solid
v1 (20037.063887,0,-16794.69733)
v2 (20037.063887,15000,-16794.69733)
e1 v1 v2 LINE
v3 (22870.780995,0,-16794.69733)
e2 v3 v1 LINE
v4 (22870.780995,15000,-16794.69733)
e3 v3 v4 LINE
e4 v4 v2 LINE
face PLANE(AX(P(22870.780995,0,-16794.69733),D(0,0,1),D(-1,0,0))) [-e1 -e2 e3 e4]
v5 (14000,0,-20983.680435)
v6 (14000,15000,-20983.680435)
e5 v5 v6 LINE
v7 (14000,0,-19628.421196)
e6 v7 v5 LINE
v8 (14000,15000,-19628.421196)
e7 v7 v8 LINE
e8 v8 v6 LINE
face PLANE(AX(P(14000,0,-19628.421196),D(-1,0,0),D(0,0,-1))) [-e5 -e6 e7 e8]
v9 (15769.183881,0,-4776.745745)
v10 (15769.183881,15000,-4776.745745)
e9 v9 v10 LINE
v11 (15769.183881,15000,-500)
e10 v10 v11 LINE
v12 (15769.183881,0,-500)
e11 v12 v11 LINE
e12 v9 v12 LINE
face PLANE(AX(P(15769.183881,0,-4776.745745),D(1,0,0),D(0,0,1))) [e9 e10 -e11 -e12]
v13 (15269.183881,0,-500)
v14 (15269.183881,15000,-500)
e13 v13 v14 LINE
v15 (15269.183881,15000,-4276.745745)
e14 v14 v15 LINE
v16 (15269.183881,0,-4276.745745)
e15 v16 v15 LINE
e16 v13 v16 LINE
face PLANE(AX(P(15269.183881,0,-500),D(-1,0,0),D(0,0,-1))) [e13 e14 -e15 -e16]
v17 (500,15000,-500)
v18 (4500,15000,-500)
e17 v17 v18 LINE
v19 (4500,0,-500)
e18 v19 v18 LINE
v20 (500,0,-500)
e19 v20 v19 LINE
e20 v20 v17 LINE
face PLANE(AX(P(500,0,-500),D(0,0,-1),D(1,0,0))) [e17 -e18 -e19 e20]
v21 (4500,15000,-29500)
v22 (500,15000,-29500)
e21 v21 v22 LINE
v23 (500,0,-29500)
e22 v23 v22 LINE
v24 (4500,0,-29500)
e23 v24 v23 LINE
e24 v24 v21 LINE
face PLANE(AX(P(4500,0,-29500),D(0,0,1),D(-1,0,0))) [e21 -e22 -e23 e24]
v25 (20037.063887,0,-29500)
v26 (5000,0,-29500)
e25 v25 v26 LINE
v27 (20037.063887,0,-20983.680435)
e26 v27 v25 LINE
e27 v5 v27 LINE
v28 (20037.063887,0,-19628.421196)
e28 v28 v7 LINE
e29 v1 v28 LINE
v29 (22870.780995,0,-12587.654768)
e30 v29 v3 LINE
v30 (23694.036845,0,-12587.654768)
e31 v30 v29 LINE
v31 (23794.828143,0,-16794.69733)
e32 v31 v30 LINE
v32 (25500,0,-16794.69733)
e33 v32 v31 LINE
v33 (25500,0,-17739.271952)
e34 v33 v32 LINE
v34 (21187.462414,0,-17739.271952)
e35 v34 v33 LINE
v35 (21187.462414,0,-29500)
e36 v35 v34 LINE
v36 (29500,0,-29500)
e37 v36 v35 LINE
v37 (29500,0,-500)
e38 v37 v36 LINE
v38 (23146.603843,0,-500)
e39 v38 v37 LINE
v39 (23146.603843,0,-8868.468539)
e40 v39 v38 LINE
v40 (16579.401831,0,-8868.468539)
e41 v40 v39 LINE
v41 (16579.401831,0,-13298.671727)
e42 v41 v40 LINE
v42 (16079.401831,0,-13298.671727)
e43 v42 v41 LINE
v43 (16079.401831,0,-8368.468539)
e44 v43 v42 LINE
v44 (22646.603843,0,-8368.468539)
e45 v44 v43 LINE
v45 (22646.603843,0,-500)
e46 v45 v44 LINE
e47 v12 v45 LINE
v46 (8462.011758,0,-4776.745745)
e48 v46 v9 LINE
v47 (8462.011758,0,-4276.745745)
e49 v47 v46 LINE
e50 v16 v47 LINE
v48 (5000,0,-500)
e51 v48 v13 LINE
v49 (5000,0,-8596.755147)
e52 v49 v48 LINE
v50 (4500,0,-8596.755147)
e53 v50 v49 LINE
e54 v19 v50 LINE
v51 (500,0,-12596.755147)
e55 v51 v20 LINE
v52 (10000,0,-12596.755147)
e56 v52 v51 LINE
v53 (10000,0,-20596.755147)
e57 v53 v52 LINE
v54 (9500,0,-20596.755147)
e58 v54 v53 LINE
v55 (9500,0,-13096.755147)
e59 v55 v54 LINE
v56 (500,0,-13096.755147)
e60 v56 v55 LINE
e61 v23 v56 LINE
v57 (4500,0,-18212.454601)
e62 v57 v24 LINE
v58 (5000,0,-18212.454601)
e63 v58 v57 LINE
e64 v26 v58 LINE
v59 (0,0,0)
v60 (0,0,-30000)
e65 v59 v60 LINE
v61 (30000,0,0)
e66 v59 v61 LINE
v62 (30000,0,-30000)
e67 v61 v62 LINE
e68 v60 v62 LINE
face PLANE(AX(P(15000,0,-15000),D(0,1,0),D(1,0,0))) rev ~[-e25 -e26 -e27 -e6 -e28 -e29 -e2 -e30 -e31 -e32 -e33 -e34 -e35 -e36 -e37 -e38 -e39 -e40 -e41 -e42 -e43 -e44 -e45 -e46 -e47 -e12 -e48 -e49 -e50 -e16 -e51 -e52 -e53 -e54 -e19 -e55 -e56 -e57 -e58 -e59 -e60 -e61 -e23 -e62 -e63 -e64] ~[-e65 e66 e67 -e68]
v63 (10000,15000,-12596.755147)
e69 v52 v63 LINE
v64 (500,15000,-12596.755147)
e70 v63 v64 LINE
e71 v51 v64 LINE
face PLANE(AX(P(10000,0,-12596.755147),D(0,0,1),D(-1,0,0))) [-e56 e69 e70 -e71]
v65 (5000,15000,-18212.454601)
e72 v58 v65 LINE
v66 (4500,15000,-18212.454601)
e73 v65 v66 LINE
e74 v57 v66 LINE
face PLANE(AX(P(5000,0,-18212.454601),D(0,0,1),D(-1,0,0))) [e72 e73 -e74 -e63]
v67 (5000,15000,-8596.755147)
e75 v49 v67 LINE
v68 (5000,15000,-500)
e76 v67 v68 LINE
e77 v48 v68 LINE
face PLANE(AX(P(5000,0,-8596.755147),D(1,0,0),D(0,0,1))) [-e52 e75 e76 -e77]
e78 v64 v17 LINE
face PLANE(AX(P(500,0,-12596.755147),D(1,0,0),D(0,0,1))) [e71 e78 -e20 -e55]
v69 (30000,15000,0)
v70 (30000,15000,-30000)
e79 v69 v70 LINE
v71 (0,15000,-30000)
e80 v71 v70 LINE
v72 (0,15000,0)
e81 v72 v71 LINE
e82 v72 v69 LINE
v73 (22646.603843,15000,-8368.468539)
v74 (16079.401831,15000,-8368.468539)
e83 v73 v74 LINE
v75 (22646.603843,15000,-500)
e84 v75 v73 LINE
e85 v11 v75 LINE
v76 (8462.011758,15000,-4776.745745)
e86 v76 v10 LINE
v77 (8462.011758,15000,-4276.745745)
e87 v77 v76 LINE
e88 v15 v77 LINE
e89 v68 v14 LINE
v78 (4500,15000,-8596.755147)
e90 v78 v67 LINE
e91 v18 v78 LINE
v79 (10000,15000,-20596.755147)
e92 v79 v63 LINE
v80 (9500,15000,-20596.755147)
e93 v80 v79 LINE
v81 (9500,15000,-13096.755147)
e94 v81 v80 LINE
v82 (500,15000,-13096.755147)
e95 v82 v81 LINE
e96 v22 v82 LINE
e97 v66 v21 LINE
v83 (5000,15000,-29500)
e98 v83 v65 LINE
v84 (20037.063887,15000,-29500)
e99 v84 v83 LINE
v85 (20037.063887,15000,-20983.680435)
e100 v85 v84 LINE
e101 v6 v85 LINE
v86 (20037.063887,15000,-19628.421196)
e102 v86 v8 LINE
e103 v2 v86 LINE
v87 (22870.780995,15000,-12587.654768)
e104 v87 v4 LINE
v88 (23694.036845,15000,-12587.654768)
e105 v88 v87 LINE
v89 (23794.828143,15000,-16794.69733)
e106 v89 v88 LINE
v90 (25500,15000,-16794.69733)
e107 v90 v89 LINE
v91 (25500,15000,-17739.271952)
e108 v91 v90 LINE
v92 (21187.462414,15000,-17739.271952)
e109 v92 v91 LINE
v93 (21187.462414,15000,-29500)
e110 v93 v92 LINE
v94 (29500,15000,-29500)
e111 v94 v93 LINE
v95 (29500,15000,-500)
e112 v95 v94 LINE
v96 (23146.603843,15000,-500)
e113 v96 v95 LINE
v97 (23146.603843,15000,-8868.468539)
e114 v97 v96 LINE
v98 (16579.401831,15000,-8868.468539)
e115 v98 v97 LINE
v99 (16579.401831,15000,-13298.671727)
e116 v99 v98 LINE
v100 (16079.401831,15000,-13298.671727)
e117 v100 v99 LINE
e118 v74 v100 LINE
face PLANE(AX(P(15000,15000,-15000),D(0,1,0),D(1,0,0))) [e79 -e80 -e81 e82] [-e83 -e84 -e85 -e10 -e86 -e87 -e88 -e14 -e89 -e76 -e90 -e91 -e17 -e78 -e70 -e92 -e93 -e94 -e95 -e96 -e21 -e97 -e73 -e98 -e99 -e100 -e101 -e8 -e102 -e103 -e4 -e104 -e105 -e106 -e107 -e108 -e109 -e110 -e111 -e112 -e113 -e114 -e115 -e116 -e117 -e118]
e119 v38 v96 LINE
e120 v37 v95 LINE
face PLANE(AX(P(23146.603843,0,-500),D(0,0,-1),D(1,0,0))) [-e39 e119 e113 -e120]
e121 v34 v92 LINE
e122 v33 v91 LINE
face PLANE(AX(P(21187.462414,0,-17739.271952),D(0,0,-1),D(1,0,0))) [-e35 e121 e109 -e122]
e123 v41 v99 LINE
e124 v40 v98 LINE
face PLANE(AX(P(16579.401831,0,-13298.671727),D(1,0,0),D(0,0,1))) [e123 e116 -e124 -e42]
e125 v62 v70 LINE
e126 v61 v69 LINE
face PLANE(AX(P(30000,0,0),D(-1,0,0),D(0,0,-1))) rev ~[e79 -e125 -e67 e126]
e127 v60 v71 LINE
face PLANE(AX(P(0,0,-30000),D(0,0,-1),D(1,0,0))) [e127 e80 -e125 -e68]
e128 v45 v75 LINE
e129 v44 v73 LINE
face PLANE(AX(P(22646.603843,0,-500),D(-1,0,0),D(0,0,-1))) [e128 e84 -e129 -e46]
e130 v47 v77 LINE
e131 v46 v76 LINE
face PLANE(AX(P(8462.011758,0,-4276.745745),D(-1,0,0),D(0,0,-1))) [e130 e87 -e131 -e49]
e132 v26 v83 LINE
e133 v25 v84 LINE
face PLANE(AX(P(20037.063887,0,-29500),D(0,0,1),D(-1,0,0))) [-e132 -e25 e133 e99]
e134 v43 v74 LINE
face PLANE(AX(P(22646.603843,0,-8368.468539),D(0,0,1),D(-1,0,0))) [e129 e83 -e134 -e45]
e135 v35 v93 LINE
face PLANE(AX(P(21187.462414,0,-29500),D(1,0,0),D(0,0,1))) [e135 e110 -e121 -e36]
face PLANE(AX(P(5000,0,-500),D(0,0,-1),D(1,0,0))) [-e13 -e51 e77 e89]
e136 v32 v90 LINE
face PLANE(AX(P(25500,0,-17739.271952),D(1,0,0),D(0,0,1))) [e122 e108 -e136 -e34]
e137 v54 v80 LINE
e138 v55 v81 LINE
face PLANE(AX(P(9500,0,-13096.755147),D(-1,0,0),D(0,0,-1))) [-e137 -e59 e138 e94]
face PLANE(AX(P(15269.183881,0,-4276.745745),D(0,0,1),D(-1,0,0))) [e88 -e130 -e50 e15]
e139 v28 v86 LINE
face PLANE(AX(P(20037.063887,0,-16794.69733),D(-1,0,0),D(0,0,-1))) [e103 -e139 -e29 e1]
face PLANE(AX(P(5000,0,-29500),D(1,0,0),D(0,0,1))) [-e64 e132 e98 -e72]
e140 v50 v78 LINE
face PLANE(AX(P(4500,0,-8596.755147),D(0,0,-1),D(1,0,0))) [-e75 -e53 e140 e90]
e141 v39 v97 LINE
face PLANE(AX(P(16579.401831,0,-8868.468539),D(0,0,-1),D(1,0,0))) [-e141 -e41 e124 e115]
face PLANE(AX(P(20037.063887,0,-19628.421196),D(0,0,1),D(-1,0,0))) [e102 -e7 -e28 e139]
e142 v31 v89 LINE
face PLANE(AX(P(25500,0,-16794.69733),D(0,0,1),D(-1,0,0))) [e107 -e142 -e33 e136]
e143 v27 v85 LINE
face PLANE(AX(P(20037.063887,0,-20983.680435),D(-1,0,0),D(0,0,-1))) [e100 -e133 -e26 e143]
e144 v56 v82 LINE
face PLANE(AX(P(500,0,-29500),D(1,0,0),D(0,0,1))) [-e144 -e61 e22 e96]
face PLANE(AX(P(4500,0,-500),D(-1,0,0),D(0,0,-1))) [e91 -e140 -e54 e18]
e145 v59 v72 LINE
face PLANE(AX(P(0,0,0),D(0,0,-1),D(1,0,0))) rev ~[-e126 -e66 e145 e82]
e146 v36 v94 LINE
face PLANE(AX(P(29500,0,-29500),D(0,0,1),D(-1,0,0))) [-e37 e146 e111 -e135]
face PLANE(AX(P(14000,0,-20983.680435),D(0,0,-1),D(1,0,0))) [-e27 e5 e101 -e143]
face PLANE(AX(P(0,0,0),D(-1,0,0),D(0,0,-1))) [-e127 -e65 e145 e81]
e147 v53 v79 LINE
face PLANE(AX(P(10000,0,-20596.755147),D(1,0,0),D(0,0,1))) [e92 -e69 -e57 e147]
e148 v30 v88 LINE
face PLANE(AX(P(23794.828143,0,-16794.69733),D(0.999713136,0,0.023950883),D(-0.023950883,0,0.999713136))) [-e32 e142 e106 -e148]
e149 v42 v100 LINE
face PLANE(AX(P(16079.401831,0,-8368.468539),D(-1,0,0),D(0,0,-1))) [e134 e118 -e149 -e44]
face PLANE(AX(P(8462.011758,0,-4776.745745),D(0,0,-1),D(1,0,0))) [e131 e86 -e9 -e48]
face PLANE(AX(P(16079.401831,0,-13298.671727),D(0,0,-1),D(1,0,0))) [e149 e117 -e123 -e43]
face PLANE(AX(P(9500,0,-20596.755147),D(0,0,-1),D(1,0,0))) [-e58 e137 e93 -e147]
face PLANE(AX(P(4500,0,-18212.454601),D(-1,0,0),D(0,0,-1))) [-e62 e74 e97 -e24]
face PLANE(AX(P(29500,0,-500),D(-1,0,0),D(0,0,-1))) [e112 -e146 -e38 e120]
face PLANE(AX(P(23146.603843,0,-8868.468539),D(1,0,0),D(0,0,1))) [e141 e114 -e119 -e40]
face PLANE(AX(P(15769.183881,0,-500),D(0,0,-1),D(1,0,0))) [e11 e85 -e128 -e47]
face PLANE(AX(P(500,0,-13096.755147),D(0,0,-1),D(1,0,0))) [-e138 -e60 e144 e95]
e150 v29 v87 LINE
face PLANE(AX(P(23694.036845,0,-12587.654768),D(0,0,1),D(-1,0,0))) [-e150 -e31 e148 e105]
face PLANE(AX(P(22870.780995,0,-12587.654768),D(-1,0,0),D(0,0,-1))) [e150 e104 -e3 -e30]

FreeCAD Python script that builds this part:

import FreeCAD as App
import Part
import Sketcher
from FreeCAD import Vector
Q = App.Units.Quantity


def add_polygon(sketch, points):
    """Adds a closed chain of lines whose ends are joined by coincident constraints."""
    first, n = sketch.GeometryCount, len(points)
    for a, b in zip(points, points[1:] + points[:1]):
        sketch.addGeometry(Part.LineSegment(App.Vector(*a, 0), App.Vector(*b, 0)), False)
    for i in range(n):
        sketch.addConstraint(Sketcher.Constraint("Coincident", first + i, 2, first + (i + 1) % n, 1))

doc = App.newDocument("Part")
body = doc.addObject("PartDesign::Body", "Body")

# Sketch on XZ plane
sketch1 = body.newObject("Sketcher::SketchObject", "Sketch")
sketch1.AttachmentSupport = (doc.getObject("XZ_Plane"), [""])
sketch1.MapMode = "FlatFace"
add_polygon(sketch1, [(0, -30000), (0, 0), (30000, 0), (30000, -30000)])  # lines 0-3
add_polygon(sketch1, [(9500, -13097), (500, -13097), (500, -29500), (4500, -29500), (4500, -18212), (5000, -18212), (5000, -29500), (20037, -29500), (20037, -20984), (14000, -20984), (14000, -19628), (20037, -19628), (20037, -16795), (22871, -16795), (22871, -12588), (23694, -12588), (23795, -16795), (25500, -16795), (25500, -17739), (21187, -17739), (21187, -29500), (29500, -29500), (29500, -500), (23147, -500), (23147, -8868), (16579, -8868), (16579, -13299), (16079, -13299), (16079, -8368), (22647, -8368), (22647, -500), (15769, -500), (15769, -4777), (8462, -4777), (8462, -4277), (15269, -4277), (15269, -500), (5000, -500), (5000, -8597), (4500, -8597), (4500, -500), (500, -500), (500, -12597), (10000, -12597), (10000, -20597), (9500, -20597)])  # lines 4-49
sketch1.addConstraint(Sketcher.Constraint("Vertical", 0))
sketch1.addConstraint(Sketcher.Constraint("Horizontal", 1))
sketch1.addConstraint(Sketcher.Constraint("Vertical", 2))
sketch1.addConstraint(Sketcher.Constraint("Horizontal", 3))
sketch1.addConstraint(Sketcher.Constraint("Horizontal", 4))
sketch1.addConstraint(Sketcher.Constraint("Vertical", 5))
sketch1.addConstraint(Sketcher.Constraint("Horizontal", 6))
sketch1.addConstraint(Sketcher.Constraint("Vertical", 7))
sketch1.addConstraint(Sketcher.Constraint("Horizontal", 8))
sketch1.addConstraint(Sketcher.Constraint("Vertical", 9))
sketch1.addConstraint(Sketcher.Constraint("Horizontal", 10))
sketch1.addConstraint(Sketcher.Constraint("Vertical", 11))
sketch1.addConstraint(Sketcher.Constraint("Horizontal", 12))
sketch1.addConstraint(Sketcher.Constraint("Vertical", 13))
sketch1.addConstraint(Sketcher.Constraint("Horizontal", 14))
sketch1.addConstraint(Sketcher.Constraint("Vertical", 15))
sketch1.addConstraint(Sketcher.Constraint("Horizontal", 16))
sketch1.addConstraint(Sketcher.Constraint("Vertical", 17))
sketch1.addConstraint(Sketcher.Constraint("Horizontal", 18))
sketch1.addConstraint(Sketcher.Constraint("Horizontal", 20))
sketch1.addConstraint(Sketcher.Constraint("Vertical", 21))
sketch1.addConstraint(Sketcher.Constraint("Horizontal", 22))
sketch1.addConstraint(Sketcher.Constraint("Vertical", 23))
sketch1.addConstraint(Sketcher.Constraint("Horizontal", 24))
sketch1.addConstraint(Sketcher.Constraint("Vertical", 25))
sketch1.addConstraint(Sketcher.Constraint("Horizontal", 26))
sketch1.addConstraint(Sketcher.Constraint("Vertical", 27))
sketch1.addConstraint(Sketcher.Constraint("Horizontal", 28))
sketch1.addConstraint(Sketcher.Constraint("Vertical", 29))
sketch1.addConstraint(Sketcher.Constraint("Horizontal", 30))
sketch1.addConstraint(Sketcher.Constraint("Vertical", 31))
sketch1.addConstraint(Sketcher.Constraint("Horizontal", 32))
sketch1.addConstraint(Sketcher.Constraint("Vertical", 33))
sketch1.addConstraint(Sketcher.Constraint("Horizontal", 34))
sketch1.addConstraint(Sketcher.Constraint("Vertical", 35))
sketch1.addConstraint(Sketcher.Constraint("Horizontal", 36))
sketch1.addConstraint(Sketcher.Constraint("Vertical", 37))
sketch1.addConstraint(Sketcher.Constraint("Horizontal", 38))
sketch1.addConstraint(Sketcher.Constraint("Vertical", 39))
sketch1.addConstraint(Sketcher.Constraint("Horizontal", 40))
sketch1.addConstraint(Sketcher.Constraint("Vertical", 41))
sketch1.addConstraint(Sketcher.Constraint("Horizontal", 42))
sketch1.addConstraint(Sketcher.Constraint("Vertical", 43))
sketch1.addConstraint(Sketcher.Constraint("Horizontal", 44))
sketch1.addConstraint(Sketcher.Constraint("Vertical", 45))
sketch1.addConstraint(Sketcher.Constraint("Horizontal", 46))
sketch1.addConstraint(Sketcher.Constraint("Vertical", 47))
sketch1.addConstraint(Sketcher.Constraint("Horizontal", 48))
sketch1.addConstraint(Sketcher.Constraint("Vertical", 49))
sketch1.addConstraint(Sketcher.Constraint("Coincident", 0, 2, -1, 1))
sketch1.addConstraint(Sketcher.Constraint("Horizontal", 6, 2, 9, 2))
sketch1.addConstraint(Sketcher.Constraint("Horizontal", 16, 2, 19, 2))
sketch1.addConstraint(Sketcher.Constraint("Horizontal", 10, 2, 23, 2))
sketch1.addConstraint(Sketcher.Constraint("Horizontal", 26, 2, 33, 2))
sketch1.addConstraint(Sketcher.Constraint("Horizontal", 34, 2, 39, 2))
sketch1.addConstraint(Sketcher.Constraint("Horizontal", 40, 2, 43, 2))
sketch1.addConstraint(Sketcher.Constraint("Vertical", 11, 2, 14, 2))
sketch1.addConstraint(Sketcher.Constraint("Vertical", 9, 2, 40, 2))
sketch1.addConstraint(Sketcher.Constraint("Vertical", 7, 2, 42, 2))
sketch1.addConstraint(Sketcher.Constraint("Vertical", 5, 2, 44, 2))
sketch1.addConstraint(Sketcher.Constraint("Equal", 8, 30))
sketch1.addConstraint(Sketcher.Constraint("Equal", 28, 32))
sketch1.addConstraint(Sketcher.Constraint("Equal", 42, 48))
sketch1.addConstraint(Sketcher.Constraint("Equal", 3, 0))
sketch1.addConstraint(Sketcher.Constraint("Equal", 48, 37))
sketch1.addConstraint(Sketcher.Constraint("DistanceX", 1, 1, 1, 2, Q("30000 mm")))
sketch1.addConstraint(Sketcher.Constraint("DistanceX", 4, 2, 4, 1, Q("9000 mm")))
sketch1.addConstraint(Sketcher.Constraint("DistanceX", 6, 1, 6, 2, Q("4000 mm")))
sketch1.addConstraint(Sketcher.Constraint("DistanceX", 8, 1, 8, 2, Q("500 mm")))
sketch1.addConstraint(Sketcher.Constraint("DistanceY", 25, 1, 25, 2, Q("29000 mm")))
sketch1.addConstraint(Sketcher.Constraint("DistanceY", 47, 2, 47, 1, Q("8000 mm")))
sketch1.addConstraint(Sketcher.Constraint("DistanceY", 49, 1, 49, 2, Q("7500 mm")))
sketch1.addConstraint(Sketcher.Constraint("DistanceX", -1, 1, 4, 2, Q("500 mm")))
sketch1.addConstraint(Sketcher.Constraint("DistanceY", 5, 2, -1, 1, Q("29500 mm")))
sketch1.addConstraint(Sketcher.Constraint("DistanceX", -1, 1, 12, 2, Q("14000 mm")))
sketch1.addConstraint(Sketcher.Constraint("DistanceX", -1, 1, 20, 2, Q("25500 mm")))
sketch1.addConstraint(Sketcher.Constraint("DistanceX", -1, 1, 24, 2, Q("29500 mm")))
sketch1.addConstraint(Sketcher.Constraint("DistanceY", 28, 2, 31, 2, Q("500 mm")))
sketch1.addConstraint(Sketcher.Constraint("DistanceX", 38, 2, 35, 2, Q("500 mm")))
sketch1.addConstraint(Sketcher.Constraint("DistanceY", 4, 2, 41, 2, Q("4500 mm")))
sketch1.addConstraint(Sketcher.Constraint("DistanceY", 7, 1, 7, 2, Q("11287.545399 mm")))
sketch1.addConstraint(Sketcher.Constraint("DistanceX", 26, 2, 18, 2, Q("547.433001 mm")))
sketch1.addConstraint(Sketcher.Constraint("DistanceX", 16, 1, 16, 2, Q("2833.717108 mm")))
sketch1.addConstraint(Sketcher.Constraint("DistanceX", 18, 1, 18, 2, Q("823.25585 mm")))
sketch1.addConstraint(Sketcher.Constraint("DistanceX", 40, 2, 40, 1, Q("10269.183881 mm")))
sketch1.addConstraint(Sketcher.Constraint("DistanceY", 13, 1, 13, 2, Q("1355.25924 mm")))
sketch1.addConstraint(Sketcher.Constraint("DistanceY", 21, 2, 21, 1, Q("944.574622 mm")))
sketch1.addConstraint(Sketcher.Constraint("DistanceY", 27, 2, 27, 1, Q("8368.468539 mm")))
sketch1.addConstraint(Sketcher.Constraint("DistanceY", 29, 2, 29, 1, Q("4430.203188 mm")))
sketch1.addConstraint(Sketcher.Constraint("DistanceX", 27, 2, 19, 2, Q("648.224299 mm")))
sketch1.addConstraint(Sketcher.Constraint("DistanceX", 10, 1, 10, 2, Q("15037.063887 mm")))
sketch1.addConstraint(Sketcher.Constraint("DistanceX", 22, 2, 22, 1, Q("4312.537586 mm")))
sketch1.addConstraint(Sketcher.Constraint("DistanceX", 28, 2, 28, 1, Q("6567.202012 mm")))
sketch1.addConstraint(Sketcher.Constraint("DistanceX", 36, 2, 36, 1, Q("7307.172123 mm")))
sketch1.addConstraint(Sketcher.Constraint("DistanceY", 5, 2, 5, 1, Q("16403.244853 mm")))
sketch1.addConstraint(Sketcher.Constraint("DistanceY", 11, 1, 11, 2, Q("8516.319565 mm")))
sketch1.addConstraint(Sketcher.Constraint("DistanceY", 15, 1, 15, 2, Q("2833.723865 mm")))
sketch1.addConstraint(Sketcher.Constraint("DistanceY", 17, 1, 17, 2, Q("4207.042562 mm")))
sketch1.addConstraint(Sketcher.Constraint("DistanceY", 35, 2, 35, 1, Q("4276.745745 mm")))
pad1 = body.newObject("PartDesign::Pad", "Pad")
pad1.Profile = sketch1
pad1.Length = 15000
pad1.Reversed = True

doc.recompute()
